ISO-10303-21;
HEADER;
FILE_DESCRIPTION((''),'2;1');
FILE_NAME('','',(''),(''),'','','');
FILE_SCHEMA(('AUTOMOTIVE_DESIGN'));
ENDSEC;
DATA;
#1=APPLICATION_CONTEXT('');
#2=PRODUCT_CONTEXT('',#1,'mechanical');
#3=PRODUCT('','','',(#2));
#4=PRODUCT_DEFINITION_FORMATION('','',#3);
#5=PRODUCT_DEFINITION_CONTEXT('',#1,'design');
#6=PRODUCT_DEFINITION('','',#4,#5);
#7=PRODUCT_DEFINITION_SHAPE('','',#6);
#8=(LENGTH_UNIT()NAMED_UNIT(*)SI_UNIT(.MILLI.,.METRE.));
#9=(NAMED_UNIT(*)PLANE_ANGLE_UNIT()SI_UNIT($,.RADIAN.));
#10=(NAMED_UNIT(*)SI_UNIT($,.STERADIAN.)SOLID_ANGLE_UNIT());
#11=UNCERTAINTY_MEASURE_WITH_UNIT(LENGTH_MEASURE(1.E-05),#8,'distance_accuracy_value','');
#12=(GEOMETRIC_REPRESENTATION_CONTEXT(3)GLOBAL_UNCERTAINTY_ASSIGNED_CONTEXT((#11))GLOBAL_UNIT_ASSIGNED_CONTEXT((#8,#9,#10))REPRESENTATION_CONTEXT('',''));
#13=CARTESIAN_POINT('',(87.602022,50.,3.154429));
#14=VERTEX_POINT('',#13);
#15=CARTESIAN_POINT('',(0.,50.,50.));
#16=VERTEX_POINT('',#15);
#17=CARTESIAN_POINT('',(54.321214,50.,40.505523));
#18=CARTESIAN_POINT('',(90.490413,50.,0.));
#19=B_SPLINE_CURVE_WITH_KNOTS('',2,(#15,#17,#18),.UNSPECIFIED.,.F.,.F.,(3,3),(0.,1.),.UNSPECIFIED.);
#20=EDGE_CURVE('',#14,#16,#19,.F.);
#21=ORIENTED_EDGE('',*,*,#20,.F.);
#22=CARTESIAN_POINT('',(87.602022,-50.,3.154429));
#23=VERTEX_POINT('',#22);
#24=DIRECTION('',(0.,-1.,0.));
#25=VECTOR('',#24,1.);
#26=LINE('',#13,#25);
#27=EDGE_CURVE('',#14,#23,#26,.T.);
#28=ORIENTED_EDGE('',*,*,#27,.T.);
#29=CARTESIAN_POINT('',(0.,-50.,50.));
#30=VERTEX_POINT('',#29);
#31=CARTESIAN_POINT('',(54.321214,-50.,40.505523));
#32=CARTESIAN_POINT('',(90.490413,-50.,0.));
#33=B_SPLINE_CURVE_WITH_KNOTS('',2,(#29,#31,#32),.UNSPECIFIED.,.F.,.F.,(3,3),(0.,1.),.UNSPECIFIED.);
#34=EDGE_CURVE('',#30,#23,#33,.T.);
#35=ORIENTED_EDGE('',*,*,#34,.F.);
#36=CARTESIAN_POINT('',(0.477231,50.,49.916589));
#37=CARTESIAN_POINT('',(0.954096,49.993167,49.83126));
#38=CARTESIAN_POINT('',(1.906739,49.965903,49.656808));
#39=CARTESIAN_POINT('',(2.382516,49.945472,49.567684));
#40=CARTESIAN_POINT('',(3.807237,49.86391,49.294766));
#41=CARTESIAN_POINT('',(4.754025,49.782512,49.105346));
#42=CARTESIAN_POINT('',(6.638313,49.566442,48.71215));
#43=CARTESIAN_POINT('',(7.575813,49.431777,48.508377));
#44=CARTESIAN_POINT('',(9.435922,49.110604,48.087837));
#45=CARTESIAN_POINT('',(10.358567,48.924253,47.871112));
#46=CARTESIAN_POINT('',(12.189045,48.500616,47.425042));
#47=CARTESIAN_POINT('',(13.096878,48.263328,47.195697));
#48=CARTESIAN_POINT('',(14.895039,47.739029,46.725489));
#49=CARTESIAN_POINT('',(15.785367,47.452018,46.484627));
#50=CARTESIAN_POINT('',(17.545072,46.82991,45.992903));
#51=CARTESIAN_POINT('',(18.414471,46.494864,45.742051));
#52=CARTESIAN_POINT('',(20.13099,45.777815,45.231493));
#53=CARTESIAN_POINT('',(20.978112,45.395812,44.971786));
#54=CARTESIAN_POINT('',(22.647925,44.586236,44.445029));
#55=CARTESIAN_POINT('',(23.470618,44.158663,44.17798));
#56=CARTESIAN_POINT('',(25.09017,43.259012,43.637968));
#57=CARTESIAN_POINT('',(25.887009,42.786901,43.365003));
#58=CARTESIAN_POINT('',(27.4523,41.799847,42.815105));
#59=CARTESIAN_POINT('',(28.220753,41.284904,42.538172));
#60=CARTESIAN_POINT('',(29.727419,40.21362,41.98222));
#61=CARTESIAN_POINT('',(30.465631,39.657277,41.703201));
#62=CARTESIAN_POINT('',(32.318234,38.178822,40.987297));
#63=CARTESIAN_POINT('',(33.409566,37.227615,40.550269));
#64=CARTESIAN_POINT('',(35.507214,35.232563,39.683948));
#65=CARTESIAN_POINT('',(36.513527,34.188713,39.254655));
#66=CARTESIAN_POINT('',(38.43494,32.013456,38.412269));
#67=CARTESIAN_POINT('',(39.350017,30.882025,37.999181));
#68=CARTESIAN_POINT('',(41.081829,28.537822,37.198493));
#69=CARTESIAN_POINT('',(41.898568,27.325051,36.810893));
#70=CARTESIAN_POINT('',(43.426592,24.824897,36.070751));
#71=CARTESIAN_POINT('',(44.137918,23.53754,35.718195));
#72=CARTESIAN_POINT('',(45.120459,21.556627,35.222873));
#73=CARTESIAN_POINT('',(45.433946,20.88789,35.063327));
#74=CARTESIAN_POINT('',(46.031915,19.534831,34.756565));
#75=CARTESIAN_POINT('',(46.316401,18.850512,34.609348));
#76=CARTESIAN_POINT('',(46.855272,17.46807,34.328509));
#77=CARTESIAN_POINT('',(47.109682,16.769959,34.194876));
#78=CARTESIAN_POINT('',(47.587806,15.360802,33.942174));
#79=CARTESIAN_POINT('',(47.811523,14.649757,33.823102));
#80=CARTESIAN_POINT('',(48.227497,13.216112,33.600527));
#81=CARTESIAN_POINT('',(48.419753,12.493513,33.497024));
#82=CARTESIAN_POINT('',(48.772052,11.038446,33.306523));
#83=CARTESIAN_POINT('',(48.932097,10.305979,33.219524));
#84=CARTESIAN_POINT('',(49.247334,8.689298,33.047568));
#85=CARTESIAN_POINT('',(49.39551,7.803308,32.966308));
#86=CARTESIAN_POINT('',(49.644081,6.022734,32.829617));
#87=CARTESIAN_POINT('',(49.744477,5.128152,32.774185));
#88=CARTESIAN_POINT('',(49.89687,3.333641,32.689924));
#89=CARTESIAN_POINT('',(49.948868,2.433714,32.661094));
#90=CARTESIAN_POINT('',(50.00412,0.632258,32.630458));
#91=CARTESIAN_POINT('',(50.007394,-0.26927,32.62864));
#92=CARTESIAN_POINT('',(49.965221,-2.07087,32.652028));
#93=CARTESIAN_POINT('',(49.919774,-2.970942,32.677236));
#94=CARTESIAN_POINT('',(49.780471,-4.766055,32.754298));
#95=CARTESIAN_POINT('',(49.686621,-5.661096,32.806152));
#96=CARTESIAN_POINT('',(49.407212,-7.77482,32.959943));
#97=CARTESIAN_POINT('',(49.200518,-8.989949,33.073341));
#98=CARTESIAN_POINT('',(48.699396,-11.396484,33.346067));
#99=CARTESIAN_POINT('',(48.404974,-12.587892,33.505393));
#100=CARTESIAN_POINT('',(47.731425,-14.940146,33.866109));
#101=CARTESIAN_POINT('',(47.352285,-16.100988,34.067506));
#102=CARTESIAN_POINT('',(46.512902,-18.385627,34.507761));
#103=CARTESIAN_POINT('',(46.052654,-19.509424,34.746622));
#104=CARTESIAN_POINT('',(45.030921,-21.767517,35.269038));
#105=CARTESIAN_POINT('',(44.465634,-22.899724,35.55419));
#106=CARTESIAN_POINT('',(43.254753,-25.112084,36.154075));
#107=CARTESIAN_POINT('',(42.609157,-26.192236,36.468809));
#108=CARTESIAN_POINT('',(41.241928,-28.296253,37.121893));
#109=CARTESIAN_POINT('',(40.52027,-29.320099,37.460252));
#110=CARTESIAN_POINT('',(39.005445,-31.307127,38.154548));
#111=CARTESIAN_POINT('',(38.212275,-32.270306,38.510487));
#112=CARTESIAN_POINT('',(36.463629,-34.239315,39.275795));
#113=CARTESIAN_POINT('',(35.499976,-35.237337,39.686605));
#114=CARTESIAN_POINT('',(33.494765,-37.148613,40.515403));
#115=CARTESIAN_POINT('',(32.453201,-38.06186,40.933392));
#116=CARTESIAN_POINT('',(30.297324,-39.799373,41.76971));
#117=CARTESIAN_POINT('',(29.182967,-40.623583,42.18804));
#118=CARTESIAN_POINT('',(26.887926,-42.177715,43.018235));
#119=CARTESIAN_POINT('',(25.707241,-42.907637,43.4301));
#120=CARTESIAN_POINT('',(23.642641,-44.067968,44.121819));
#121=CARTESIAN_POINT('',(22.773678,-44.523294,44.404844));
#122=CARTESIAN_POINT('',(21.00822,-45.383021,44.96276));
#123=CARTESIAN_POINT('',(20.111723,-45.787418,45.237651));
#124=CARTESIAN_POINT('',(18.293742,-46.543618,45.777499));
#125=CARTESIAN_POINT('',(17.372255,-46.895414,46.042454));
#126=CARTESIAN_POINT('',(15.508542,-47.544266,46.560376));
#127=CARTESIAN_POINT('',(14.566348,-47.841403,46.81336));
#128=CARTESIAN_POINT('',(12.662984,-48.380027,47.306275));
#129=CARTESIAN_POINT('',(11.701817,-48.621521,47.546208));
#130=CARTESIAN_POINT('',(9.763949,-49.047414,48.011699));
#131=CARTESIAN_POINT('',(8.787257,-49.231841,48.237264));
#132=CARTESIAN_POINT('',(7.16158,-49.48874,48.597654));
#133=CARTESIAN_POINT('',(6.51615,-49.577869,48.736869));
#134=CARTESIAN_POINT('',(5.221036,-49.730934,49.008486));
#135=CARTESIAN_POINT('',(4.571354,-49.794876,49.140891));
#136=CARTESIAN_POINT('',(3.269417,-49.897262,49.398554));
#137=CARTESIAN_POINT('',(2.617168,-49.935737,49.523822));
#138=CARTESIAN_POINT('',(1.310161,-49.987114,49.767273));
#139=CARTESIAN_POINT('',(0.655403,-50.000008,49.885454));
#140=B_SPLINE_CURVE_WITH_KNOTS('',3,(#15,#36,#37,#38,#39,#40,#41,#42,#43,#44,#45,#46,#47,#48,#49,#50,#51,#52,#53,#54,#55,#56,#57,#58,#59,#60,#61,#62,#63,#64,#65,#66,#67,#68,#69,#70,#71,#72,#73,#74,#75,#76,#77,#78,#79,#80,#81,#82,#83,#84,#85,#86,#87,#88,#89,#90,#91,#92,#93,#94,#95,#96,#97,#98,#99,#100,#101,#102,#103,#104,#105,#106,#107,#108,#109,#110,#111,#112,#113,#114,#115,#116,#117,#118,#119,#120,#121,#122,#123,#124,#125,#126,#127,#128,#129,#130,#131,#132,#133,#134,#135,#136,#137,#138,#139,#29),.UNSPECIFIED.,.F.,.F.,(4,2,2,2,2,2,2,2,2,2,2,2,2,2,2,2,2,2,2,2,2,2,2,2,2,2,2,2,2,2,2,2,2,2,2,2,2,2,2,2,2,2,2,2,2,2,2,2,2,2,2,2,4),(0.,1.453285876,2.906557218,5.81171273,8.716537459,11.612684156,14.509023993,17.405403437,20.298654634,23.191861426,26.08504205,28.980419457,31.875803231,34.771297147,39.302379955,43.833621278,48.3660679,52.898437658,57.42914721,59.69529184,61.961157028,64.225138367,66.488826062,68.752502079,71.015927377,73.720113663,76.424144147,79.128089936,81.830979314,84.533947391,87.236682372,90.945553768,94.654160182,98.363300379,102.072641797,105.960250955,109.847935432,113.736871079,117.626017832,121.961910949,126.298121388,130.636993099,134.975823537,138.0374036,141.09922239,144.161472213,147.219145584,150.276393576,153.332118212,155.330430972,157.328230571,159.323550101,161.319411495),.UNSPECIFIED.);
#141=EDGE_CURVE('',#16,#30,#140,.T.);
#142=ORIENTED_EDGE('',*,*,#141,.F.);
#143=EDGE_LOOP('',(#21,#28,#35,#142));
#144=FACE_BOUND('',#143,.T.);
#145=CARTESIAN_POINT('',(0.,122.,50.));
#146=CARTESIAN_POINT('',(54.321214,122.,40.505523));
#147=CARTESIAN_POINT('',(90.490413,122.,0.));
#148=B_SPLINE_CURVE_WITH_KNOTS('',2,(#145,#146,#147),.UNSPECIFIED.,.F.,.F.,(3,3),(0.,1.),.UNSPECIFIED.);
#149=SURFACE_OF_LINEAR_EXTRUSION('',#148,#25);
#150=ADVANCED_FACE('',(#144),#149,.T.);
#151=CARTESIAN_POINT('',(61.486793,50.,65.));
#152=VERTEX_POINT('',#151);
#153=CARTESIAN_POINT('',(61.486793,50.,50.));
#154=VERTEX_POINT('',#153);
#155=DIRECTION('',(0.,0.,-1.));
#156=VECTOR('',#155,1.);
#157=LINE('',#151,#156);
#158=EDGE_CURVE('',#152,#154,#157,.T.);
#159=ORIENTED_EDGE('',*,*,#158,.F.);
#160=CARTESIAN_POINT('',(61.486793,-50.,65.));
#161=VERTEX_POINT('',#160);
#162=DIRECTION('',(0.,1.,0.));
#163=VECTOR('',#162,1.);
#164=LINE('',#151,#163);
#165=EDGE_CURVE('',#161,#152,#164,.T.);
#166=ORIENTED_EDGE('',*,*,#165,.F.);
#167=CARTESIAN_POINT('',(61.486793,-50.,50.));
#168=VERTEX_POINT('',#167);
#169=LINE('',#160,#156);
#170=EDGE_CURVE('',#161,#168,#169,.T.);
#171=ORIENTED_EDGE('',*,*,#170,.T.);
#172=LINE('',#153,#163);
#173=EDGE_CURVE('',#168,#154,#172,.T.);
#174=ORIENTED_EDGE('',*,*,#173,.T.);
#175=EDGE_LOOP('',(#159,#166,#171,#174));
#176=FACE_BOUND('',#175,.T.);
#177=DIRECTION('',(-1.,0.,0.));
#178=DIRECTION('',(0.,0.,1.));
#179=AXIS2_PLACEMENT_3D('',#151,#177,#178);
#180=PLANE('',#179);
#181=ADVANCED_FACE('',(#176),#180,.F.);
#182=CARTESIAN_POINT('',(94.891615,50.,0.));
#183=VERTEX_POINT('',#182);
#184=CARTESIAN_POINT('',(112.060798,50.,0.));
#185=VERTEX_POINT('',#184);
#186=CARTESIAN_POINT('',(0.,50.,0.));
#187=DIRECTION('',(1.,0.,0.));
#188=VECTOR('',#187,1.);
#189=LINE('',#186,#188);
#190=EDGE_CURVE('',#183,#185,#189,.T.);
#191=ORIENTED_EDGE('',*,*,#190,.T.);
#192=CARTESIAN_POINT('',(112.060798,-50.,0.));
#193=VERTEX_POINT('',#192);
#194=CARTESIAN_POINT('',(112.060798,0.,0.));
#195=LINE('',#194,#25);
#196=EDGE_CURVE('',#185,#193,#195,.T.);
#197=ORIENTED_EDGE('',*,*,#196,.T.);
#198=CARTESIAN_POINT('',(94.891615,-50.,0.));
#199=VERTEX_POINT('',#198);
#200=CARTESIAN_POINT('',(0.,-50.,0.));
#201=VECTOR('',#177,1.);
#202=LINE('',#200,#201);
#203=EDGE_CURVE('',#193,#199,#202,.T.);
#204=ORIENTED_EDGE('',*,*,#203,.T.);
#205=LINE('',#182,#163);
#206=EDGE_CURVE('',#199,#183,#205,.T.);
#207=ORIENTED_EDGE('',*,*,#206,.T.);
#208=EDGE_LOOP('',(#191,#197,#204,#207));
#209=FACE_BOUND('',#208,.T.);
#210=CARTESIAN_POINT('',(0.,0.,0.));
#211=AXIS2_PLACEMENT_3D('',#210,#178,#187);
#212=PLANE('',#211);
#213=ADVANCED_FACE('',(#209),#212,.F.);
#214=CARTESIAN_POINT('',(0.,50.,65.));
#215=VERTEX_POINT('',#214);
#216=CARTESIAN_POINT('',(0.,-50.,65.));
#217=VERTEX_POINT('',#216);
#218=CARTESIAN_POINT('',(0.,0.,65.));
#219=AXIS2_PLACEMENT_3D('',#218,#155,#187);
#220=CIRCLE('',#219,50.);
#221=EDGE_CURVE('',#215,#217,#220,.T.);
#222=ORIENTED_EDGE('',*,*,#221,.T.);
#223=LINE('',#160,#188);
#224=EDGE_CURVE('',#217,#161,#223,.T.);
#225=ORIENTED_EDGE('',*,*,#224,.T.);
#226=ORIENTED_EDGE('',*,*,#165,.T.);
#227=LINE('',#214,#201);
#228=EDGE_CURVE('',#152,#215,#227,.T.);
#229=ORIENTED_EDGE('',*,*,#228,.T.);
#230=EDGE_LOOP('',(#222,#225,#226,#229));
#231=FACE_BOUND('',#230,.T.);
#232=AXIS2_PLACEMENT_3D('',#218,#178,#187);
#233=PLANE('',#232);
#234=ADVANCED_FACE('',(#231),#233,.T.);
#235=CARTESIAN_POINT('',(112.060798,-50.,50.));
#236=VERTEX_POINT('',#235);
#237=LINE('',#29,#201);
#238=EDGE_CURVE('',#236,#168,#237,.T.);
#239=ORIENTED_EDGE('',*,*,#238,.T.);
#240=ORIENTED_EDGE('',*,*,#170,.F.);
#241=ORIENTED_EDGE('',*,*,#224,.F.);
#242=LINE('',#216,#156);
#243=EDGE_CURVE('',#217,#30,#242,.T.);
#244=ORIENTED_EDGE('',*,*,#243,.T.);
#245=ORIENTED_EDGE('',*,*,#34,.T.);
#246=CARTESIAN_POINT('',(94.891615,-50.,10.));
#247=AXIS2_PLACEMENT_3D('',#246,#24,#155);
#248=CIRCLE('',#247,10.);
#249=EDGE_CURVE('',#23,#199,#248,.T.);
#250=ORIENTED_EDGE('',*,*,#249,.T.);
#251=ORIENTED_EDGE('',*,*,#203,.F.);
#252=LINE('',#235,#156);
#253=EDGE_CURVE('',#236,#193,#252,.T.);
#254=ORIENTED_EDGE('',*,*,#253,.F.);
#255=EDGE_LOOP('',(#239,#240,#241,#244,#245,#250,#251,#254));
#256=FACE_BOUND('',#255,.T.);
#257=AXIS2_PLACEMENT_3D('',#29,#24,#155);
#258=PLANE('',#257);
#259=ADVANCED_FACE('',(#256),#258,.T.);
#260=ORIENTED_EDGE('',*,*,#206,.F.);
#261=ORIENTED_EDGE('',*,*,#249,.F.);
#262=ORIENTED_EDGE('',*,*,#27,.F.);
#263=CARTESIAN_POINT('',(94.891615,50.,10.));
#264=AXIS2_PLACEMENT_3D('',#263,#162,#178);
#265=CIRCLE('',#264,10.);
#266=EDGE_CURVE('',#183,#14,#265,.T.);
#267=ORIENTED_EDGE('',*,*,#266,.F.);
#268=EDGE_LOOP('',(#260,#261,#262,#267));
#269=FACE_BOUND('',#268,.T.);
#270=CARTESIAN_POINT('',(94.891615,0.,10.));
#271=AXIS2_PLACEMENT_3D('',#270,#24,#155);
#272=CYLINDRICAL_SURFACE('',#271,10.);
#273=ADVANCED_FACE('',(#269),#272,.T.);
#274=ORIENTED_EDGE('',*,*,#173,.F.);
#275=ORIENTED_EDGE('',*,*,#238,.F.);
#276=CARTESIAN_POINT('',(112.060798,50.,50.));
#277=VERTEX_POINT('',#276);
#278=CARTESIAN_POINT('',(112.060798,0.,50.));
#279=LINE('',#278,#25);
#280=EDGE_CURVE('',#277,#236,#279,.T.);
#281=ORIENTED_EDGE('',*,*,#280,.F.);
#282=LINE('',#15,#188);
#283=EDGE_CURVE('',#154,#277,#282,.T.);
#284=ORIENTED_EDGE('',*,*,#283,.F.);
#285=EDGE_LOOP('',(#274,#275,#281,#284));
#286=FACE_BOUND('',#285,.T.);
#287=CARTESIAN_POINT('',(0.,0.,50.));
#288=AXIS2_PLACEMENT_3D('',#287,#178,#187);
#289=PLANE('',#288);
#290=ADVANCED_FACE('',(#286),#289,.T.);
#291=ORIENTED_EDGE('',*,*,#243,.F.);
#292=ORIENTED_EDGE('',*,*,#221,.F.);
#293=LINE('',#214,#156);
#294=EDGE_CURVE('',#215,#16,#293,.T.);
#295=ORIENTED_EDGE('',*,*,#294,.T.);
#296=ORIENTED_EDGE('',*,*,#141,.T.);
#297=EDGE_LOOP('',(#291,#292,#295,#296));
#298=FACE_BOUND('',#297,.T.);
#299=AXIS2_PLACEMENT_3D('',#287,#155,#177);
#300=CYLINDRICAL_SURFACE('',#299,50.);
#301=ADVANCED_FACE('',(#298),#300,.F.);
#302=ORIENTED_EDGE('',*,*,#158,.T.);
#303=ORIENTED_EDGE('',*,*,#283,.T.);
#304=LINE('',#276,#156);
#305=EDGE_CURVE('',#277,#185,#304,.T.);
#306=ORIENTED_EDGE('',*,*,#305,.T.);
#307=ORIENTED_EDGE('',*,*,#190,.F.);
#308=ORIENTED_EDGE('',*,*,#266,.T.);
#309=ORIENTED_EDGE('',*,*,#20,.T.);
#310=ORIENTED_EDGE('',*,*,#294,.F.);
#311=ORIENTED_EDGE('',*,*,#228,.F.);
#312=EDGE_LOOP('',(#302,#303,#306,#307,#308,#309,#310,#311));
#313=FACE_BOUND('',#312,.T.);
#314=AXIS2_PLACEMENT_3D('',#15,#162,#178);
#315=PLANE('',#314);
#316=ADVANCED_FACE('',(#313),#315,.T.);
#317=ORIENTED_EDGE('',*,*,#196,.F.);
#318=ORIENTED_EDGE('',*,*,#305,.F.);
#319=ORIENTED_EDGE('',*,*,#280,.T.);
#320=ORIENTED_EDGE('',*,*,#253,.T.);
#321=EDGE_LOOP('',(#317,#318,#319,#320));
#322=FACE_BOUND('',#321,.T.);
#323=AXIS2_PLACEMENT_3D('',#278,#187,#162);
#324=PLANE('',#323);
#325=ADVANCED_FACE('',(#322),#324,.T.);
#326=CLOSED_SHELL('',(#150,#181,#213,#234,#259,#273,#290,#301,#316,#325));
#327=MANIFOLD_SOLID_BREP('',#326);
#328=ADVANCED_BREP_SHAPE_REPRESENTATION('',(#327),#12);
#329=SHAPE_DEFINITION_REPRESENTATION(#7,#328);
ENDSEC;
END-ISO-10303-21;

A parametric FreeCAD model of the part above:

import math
import FreeCAD as App
import Part
import Sketcher
from FreeCAD import Vector
Q = App.Units.Quantity


def edges_at(feature, points):
    """Names of the edges that pass closest to the given points."""
    edges = feature.Shape.Edges
    near = lambda p: min(range(len(edges)), key=lambda i: edges[i].distToShape(Part.Vertex(*p))[0])
    return sorted({f"Edge{near(p) + 1}" for p in points})

doc = App.newDocument("Part")
params = doc.addObject("Spreadsheet::Sheet", "Params")
for row, (alias, value) in enumerate([
    ("sketch1_radius", "50 mm"),
    ("pad1_length", "50 mm"),
    ("fillet_radius", "10 mm"),
    ("sketch3_radius", "50 mm"),
    ("pad2_length", "15 mm"),
], start=1):
    params.set(f"A{row}", alias)
    params.set(f"B{row}", "=" + value)
    params.setAlias(f"B{row}", alias)

body = doc.addObject("PartDesign::Body", "Body")

sketch1 = doc.addObject("Sketcher::SketchObject", "Sketch")
body.addObject(sketch1)
sketch1.AttachmentSupport = (doc.XY_Plane, [""])
sketch1.MapMode = "FlatFace"
sketch1.addGeometry(Part.LineSegment(Vector(112, 50, 0), Vector(0, 50, 0)), False)
sketch1.addGeometry(Part.ArcOfCircle(Part.Circle(Vector(0, 0, 0), Vector(0, 0, 1), 50), math.radians(0), math.radians(90)), False)
sketch1.addGeometry(Part.ArcOfCircle(Part.Circle(Vector(0, 0, 0), Vector(0, 0, 1), 50), math.radians(-90), math.radians(0)), False)
sketch1.addGeometry(Part.LineSegment(Vector(0, -50, 0), Vector(112, -50, 0)), False)
sketch1.addGeometry(Part.LineSegment(Vector(112, -50, 0), Vector(112, 50, 0)), False)
sketch1.addConstraint(Sketcher.Constraint("Tangent", 0, 2, 1, 2))
sketch1.addConstraint(Sketcher.Constraint("Tangent", 1, 1, 2, 2))
sketch1.addConstraint(Sketcher.Constraint("Tangent", 2, 1, 3, 1))
sketch1.addConstraint(Sketcher.Constraint("Coincident", 3, 2, 4, 1))
sketch1.addConstraint(Sketcher.Constraint("Coincident", 4, 2, 0, 1))
sketch1.addConstraint(Sketcher.Constraint("Horizontal", 0))
sketch1.addConstraint(Sketcher.Constraint("Horizontal", 3))
sketch1.addConstraint(Sketcher.Constraint("Vertical", 4))
sketch1.addConstraint(Sketcher.Constraint("Coincident", 1, 3, -1, 1))
sketch1.addConstraint(Sketcher.Constraint("Equal", 1, 2))
sketch1.addConstraint(Sketcher.Constraint("PointOnObject", 1, 1, -1))
sketch1.addConstraint(Sketcher.Constraint("Radius", 1, Q("50 mm")))
sketch1.addConstraint(Sketcher.Constraint("DistanceX", 0, 2, 0, 1, Q("112.060798 mm")))
sketch1.setExpression("Constraints[11]", "Params.sketch1_radius")
pad1 = doc.addObject("PartDesign::Pad", "Pad")
body.addObject(pad1)
pad1.Profile = sketch1
pad1.setExpression("Length", "Params.pad1_length")

sketch2 = doc.addObject("Sketcher::SketchObject", "Sketch001")
body.addObject(sketch2)
sketch2.AttachmentSupport = (doc.XZ_Plane, [""])
sketch2.MapMode = "FlatFace"
sketch2.addGeometry(Part.LineSegment(Vector(90.490413, 0, 0), Vector(0, 0, 0)), False)
sketch2.addGeometry(Part.LineSegment(Vector(0, 0, 0), Vector(0, 50, 0)), False)
sketch2.addGeometry(Part.BSplineCurve([Vector(0, 50, 0), Vector(54.321214, 40.505523, 0), Vector(90.490413, 0, 0)], [3, 3], [0, 1], False, 2, [1, 1, 1], False), False)
sketch2.addConstraint(Sketcher.Constraint("Block", 2))
sketch2.addConstraint(Sketcher.Constraint("Coincident", 0, 2, 1, 1))
sketch2.addConstraint(Sketcher.Constraint("Coincident", 1, 2, 2, 1))
sketch2.addConstraint(Sketcher.Constraint("Coincident", 2, 2, 0, 1))
sketch2.addConstraint(Sketcher.Constraint("Horizontal", 0))
sketch2.addConstraint(Sketcher.Constraint("Vertical", 1))
pocket1 = doc.addObject("PartDesign::Pocket", "Pocket")
body.addObject(pocket1)
pocket1.Profile = sketch2
pocket1.Type = "ThroughAll"
pocket1.Midplane = True
doc.recompute()

fillet = doc.addObject("PartDesign::Fillet", "Fillet")
body.addObject(fillet)
fillet.Base = (pocket1, edges_at(pocket1, [(90.49, -25, 0)]))
fillet.setExpression("Radius", "Params.fillet_radius")

sketch3 = doc.addObject("Sketcher::SketchObject", "Sketch002")
body.addObject(sketch3)
sketch3.AttachmentSupport = (doc.XY_Plane, [""])
sketch3.MapMode = "FlatFace"
sketch3.AttachmentOffset = App.Placement(Vector(0, 0, 50), App.Rotation())
sketch3.addGeometry(Part.LineSegment(Vector(61, 50, 0), Vector(0, 50, 0)), False)
sketch3.addGeometry(Part.ArcOfCircle(Part.Circle(Vector(0, 0, 0), Vector(0, 0, 1), 50), math.radians(-90), math.radians(90)), False)
sketch3.addGeometry(Part.LineSegment(Vector(0, -50, 0), Vector(61, -50, 0)), False)
sketch3.addGeometry(Part.LineSegment(Vector(61, -50, 0), Vector(61, 50, 0)), False)
sketch3.addConstraint(Sketcher.Constraint("Tangent", 0, 2, 1, 2))
sketch3.addConstraint(Sketcher.Constraint("Tangent", 1, 1, 2, 1))
sketch3.addConstraint(Sketcher.Constraint("Coincident", 2, 2, 3, 1))
sketch3.addConstraint(Sketcher.Constraint("Coincident", 3, 2, 0, 1))
sketch3.addConstraint(Sketcher.Constraint("Horizontal", 0))
sketch3.addConstraint(Sketcher.Constraint("Horizontal", 2))
sketch3.addConstraint(Sketcher.Constraint("Vertical", 3))
sketch3.addConstraint(Sketcher.Constraint("Coincident", 1, 3, -1, 1))
sketch3.addConstraint(Sketcher.Constraint("Radius", 1, Q("50 mm")))
sketch3.addConstraint(Sketcher.Constraint("DistanceX", 0, 2, 0, 1, Q("61.486793 mm")))
sketch3.setExpression("Constraints[8]", "Params.sketch3_radius")
pad2 = doc.addObject("PartDesign::Pad", "Pad001")
body.addObject(pad2)
pad2.Profile = sketch3
pad2.setExpression("Length", "Params.pad2_length")

doc.recompute()
